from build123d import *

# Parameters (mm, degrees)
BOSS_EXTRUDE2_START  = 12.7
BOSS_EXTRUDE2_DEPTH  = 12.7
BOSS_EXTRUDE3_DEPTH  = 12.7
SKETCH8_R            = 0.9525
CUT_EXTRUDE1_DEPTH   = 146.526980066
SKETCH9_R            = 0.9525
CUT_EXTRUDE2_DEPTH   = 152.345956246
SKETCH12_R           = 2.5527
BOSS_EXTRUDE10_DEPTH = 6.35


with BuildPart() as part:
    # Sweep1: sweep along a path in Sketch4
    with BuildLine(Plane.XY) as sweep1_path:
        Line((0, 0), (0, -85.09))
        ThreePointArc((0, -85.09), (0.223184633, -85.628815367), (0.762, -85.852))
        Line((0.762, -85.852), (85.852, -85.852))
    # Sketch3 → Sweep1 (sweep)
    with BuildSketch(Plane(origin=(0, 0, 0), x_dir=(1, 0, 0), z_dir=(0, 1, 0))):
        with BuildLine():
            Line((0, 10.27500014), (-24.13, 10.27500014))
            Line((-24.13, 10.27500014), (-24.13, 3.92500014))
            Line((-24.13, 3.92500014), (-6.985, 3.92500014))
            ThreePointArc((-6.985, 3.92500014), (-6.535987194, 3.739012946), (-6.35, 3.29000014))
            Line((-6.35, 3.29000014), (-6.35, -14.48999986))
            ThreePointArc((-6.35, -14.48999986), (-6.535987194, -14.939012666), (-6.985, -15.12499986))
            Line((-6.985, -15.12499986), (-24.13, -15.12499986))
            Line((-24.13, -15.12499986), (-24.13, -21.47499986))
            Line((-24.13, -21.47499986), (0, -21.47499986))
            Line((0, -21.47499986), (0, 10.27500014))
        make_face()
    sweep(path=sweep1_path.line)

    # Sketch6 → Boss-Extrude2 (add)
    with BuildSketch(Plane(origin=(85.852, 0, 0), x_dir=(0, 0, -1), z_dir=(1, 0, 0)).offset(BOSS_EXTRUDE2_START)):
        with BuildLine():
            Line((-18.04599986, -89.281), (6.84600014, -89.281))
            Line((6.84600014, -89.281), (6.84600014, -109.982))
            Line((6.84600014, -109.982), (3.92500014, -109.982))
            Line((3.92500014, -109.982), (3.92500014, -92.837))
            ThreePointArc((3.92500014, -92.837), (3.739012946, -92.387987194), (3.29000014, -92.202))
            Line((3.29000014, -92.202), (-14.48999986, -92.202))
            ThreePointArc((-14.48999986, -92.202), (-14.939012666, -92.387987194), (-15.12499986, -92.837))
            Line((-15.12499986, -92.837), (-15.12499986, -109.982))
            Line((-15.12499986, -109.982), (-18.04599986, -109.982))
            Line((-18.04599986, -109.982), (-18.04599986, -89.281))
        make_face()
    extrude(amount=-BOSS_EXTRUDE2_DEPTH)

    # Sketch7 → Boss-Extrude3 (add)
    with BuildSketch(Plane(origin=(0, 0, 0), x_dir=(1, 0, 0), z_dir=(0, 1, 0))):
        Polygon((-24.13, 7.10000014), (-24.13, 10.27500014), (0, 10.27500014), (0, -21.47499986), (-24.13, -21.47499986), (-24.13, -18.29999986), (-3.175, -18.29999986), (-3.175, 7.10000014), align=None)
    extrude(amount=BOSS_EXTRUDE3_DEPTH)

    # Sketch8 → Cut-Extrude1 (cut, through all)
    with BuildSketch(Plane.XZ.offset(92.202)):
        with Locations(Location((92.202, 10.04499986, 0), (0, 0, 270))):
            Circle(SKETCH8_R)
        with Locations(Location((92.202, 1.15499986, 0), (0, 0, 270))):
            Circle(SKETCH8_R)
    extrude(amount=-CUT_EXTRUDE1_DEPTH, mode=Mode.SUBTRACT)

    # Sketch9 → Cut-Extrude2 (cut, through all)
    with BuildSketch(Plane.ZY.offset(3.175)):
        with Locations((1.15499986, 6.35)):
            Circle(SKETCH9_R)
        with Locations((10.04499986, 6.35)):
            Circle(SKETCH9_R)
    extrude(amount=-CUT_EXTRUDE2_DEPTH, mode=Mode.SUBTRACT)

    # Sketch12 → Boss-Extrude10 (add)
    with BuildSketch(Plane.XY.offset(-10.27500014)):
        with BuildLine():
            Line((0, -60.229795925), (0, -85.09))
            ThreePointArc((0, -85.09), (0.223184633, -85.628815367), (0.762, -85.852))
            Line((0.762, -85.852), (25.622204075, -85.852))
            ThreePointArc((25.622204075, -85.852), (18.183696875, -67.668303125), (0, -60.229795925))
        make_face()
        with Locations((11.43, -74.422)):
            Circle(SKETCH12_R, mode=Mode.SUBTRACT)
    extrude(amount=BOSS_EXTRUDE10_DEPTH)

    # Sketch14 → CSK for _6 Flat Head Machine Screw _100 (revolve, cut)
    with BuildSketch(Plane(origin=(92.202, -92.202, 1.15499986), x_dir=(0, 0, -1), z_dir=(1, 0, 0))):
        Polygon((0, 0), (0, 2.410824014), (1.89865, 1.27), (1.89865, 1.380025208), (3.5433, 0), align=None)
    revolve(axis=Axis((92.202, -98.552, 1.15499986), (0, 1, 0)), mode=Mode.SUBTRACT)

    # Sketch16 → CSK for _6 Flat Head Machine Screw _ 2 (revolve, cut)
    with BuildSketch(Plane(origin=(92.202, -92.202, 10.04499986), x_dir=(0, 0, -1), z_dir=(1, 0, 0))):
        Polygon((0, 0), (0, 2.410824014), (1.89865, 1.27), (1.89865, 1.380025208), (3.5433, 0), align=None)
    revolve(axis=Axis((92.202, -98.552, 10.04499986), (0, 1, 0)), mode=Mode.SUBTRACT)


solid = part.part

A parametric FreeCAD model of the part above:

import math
import FreeCAD as App
import Part
import Sketcher
Q = App.Units.Quantity

doc = App.newDocument("Part")
params = doc.addObject("Spreadsheet::Sheet", "Params")
for row, (alias, value) in enumerate([
    ("sketch1_height", "0.7 in"),
    ("sketch1_radius", "0.025 in"),
    ("sketch1_width", "0.95 in"),
    ("sketch2_radius", "0.03 in"),
    ("sketch2_width", "3.35 in"),
    ("sketch3_height", "0.7 in"),
    ("sketch3_radius", "0.025 in"),
    ("sketch3_height2", "0.98 in"),
    ("sketch3_width", "0.815 in"),
    ("pad1_length", "0.5 in"),
    ("sketch4_height", "1 in"),
    ("sketch4_width", "0.95 in"),
    ("sketch4_height2", "1.25 in"),
    ("sketch4_width2", "0.825 in"),
    ("pad2_length", "0.5 in"),
    ("sketch5_diameter", "0.075 in"),
    ("sketch6_diameter", "0.075 in"),
    ("sketch7_radius", "1 in"),
    ("sketch7_radius2", "0.03 in"),
    ("sketch7_diameter", "0.201 in"),
    ("pad3_length", "0.25 in"),
    ("groove_angle", "360 deg"),
    ("groove2_angle", "360 deg"),
], start=1):
    params.set(f"A{row}", alias)
    params.set(f"B{row}", "=" + value)
    params.setAlias(f"B{row}", alias)

body = doc.addObject("PartDesign::Body", "Body")

# Sketch on XZ plane
sketch1 = doc.addObject("Sketcher::SketchObject", "Sketch")
body.addObject(sketch1)
sketch1.AttachmentSupport = (doc.XZ_Plane, [""])
sketch1.MapMode = "FlatFace"
sketch1.addGeometry([
    Part.LineSegment(App.Vector(0, -10.3, 0), App.Vector(-24.1, -10.3, 0)),  # 0
    Part.LineSegment(App.Vector(-24.1, -10.3, 0), App.Vector(-24.1, -3.9, 0)),  # 1
    Part.LineSegment(App.Vector(-24.1, -3.9, 0), App.Vector(-7, -3.9, 0)),  # 2
    Part.ArcOfCircle(Part.Circle(App.Vector(-7, -3.3, 0), App.Vector(0, 0, 1), 0.6), math.radians(-90), math.radians(0)),  # 3
    Part.LineSegment(App.Vector(-6.3, -3.3, 0), App.Vector(-6.3, 14.5, 0)),  # 4
    Part.ArcOfCircle(Part.Circle(App.Vector(-7, 14.5, 0), App.Vector(0, 0, 1), 0.6), math.radians(0), math.radians(90)),  # 5
    Part.LineSegment(App.Vector(-7, 15.1, 0), App.Vector(-24.1, 15.1, 0)),  # 6
    Part.LineSegment(App.Vector(-24.1, 15.1, 0), App.Vector(-24.1, 21.5, 0)),  # 7
    Part.LineSegment(App.Vector(-24.1, 21.5, 0), App.Vector(0, 21.5, 0)),  # 8
    Part.LineSegment(App.Vector(0, 21.5, 0), App.Vector(0, -10.3, 0)),  # 9
], False)
sketch1.addConstraint([
    Sketcher.Constraint("Coincident", 0, 2, 1, 1),
    Sketcher.Constraint("Coincident", 1, 2, 2, 1),
    Sketcher.Constraint("Tangent", 2, 2, 3, 1),
    Sketcher.Constraint("Tangent", 3, 2, 4, 1),
    Sketcher.Constraint("Tangent", 4, 2, 5, 1),
    Sketcher.Constraint("Tangent", 5, 2, 6, 1),
    Sketcher.Constraint("Coincident", 6, 2, 7, 1),
    Sketcher.Constraint("Coincident", 7, 2, 8, 1),
    Sketcher.Constraint("Coincident", 8, 2, 9, 1),
    Sketcher.Constraint("Coincident", 9, 2, 0, 1),
    Sketcher.Constraint("Horizontal", 0),
    Sketcher.Constraint("Vertical", 1),
    Sketcher.Constraint("Horizontal", 2),
    Sketcher.Constraint("Vertical", 4),
    Sketcher.Constraint("Horizontal", 6),
    Sketcher.Constraint("Vertical", 7),
    Sketcher.Constraint("Horizontal", 8),
    Sketcher.Constraint("Vertical", 9),
    Sketcher.Constraint("Equal", 3, 5),
    Sketcher.Constraint("PointOnObject", 8, 2, -2),
    Sketcher.Constraint("Vertical", 1, 2, 6, 2),
    Sketcher.Constraint("Equal", 1, 7),
    Sketcher.Constraint("DistanceY", 4, 1, 4, 2, Q("0.7 in")),
    Sketcher.Constraint("Radius", 3, Q("0.025 in")),
    Sketcher.Constraint("DistanceY", 1, 2, 7, 2, Q("1 in")),
    Sketcher.Constraint("DistanceX", 0, 2, 0, 1, Q("0.95 in")),
    Sketcher.Constraint("DistanceX", 1, 2, 3, 2, Q("0.7 in")),
    Sketcher.Constraint("DistanceY", 3, 3, -1, 1, Q("3.29 mm")),
])
sketch1.setExpression("Constraints[22]", "Params.sketch1_height")
sketch1.setExpression("Constraints[23]", "Params.sketch1_radius")
sketch1.setExpression("Constraints[25]", "Params.sketch1_width")

# Sketch on XY plane
sketch2 = doc.addObject("Sketcher::SketchObject", "Sketch001")
body.addObject(sketch2)
sketch2.AttachmentSupport = (doc.XY_Plane, [""])
sketch2.MapMode = "FlatFace"
sketch2.addGeometry([
    Part.LineSegment(App.Vector(0, 0, 0), App.Vector(0, -85.1, 0)),
    Part.ArcOfCircle(Part.Circle(App.Vector(0.8, -85.1, 0), App.Vector(0, 0, 1), 0.8), math.radians(-180), math.radians(-90)),
    Part.LineSegment(App.Vector(0.8, -85.9, 0), App.Vector(85.9, -85.9, 0)),
], False)
sketch2.addConstraint([
    Sketcher.Constraint("Tangent", 0, 2, 1, 1),
    Sketcher.Constraint("Tangent", 1, 2, 2, 1),
    Sketcher.Constraint("Vertical", 0),
    Sketcher.Constraint("Horizontal", 2),
    Sketcher.Constraint("Coincident", 0, 1, -1, 1),
    Sketcher.Constraint("Equal", 2, 0),
    Sketcher.Constraint("Radius", 1, Q("0.03 in")),
    Sketcher.Constraint("DistanceX", 2, 1, 2, 2, Q("3.35 in")),
])
sketch2.setExpression("Constraints[6]", "Params.sketch2_radius")
sketch2.setExpression("Constraints[7]", "Params.sketch2_width")
doc.recompute()

additivepipe = doc.addObject("PartDesign::AdditivePipe", "AdditivePipe")
body.addObject(additivepipe)
additivepipe.Profile = sketch1
additivepipe.Spine = (sketch2, ["Edge1", "Edge2", "Edge3"])

# Sketch on YZ plane
sketch3 = doc.addObject("Sketcher::SketchObject", "Sketch002")
body.addObject(sketch3)
sketch3.AttachmentSupport = (doc.YZ_Plane, [""])
sketch3.MapMode = "FlatFace"
sketch3.AttachmentOffset = App.Placement(App.Vector(0, 0, 3.88 * 25.4), App.Rotation())
sketch3.addGeometry([
    Part.LineSegment(App.Vector(-89.3, -6.8, 0), App.Vector(-89.3, 18, 0)),  # 0
    Part.LineSegment(App.Vector(-89.3, 18, 0), App.Vector(-110, 18, 0)),  # 1
    Part.LineSegment(App.Vector(-110, 18, 0), App.Vector(-110, 15.1, 0)),  # 2
    Part.LineSegment(App.Vector(-110, 15.1, 0), App.Vector(-92.8, 15.1, 0)),  # 3
    Part.ArcOfCircle(Part.Circle(App.Vector(-92.8, 14.5, 0), App.Vector(0, 0, 1), 0.6), math.radians(0), math.radians(90)),  # 4
    Part.LineSegment(App.Vector(-92.2, 14.5, 0), App.Vector(-92.2, -3.3, 0)),  # 5
    Part.ArcOfCircle(Part.Circle(App.Vector(-92.8, -3.3, 0), App.Vector(0, 0, 1), 0.6), math.radians(-90), math.radians(0)),  # 6
    Part.LineSegment(App.Vector(-92.8, -3.9, 0), App.Vector(-110, -3.9, 0)),  # 7
    Part.LineSegment(App.Vector(-110, -3.9, 0), App.Vector(-110, -6.8, 0)),  # 8
    Part.LineSegment(App.Vector(-110, -6.8, 0), App.Vector(-89.3, -6.8, 0)),  # 9
], False)
sketch3.addConstraint([
    Sketcher.Constraint("Coincident", 0, 2, 1, 1),
    Sketcher.Constraint("Coincident", 1, 2, 2, 1),
    Sketcher.Constraint("Coincident", 2, 2, 3, 1),
    Sketcher.Constraint("Tangent", 3, 2, 4, 2),
    Sketcher.Constraint("Tangent", 4, 1, 5, 1),
    Sketcher.Constraint("Tangent", 5, 2, 6, 2),
    Sketcher.Constraint("Tangent", 6, 1, 7, 1),
    Sketcher.Constraint("Coincident", 7, 2, 8, 1),
    Sketcher.Constraint("Coincident", 8, 2, 9, 1),
    Sketcher.Constraint("Coincident", 9, 2, 0, 1),
    Sketcher.Constraint("Vertical", 0),
    Sketcher.Constraint("Horizontal", 1),
    Sketcher.Constraint("Vertical", 2),
    Sketcher.Constraint("Horizontal", 3),
    Sketcher.Constraint("Vertical", 5),
    Sketcher.Constraint("Horizontal", 7),
    Sketcher.Constraint("Vertical", 8),
    Sketcher.Constraint("Horizontal", 9),
    Sketcher.Constraint("Equal", 4, 6),
    Sketcher.Constraint("Vertical", 2, 2, 7, 2),
    Sketcher.Constraint("Equal", 2, 8),
    Sketcher.Constraint("DistanceY", 5, 2, 5, 1, Q("0.7 in")),
    Sketcher.Constraint("Radius", 4, Q("0.025 in")),
    Sketcher.Constraint("DistanceY", 0, 1, 0, 2, Q("0.98 in")),
    Sketcher.Constraint("DistanceX", 2, 2, 4, 1, Q("0.7 in")),
    Sketcher.Constraint("DistanceX", 1, 2, 1, 1, Q("0.815 in")),
    Sketcher.Constraint("DistanceX", 1, 2, -1, 1, Q("4.33 in")),
    Sketcher.Constraint("DistanceY", -1, 1, 4, 3, Q("14.49 mm")),
])
sketch3.setExpression("Constraints[21]", "Params.sketch3_height")
sketch3.setExpression("Constraints[22]", "Params.sketch3_radius")
sketch3.setExpression("Constraints[23]", "Params.sketch3_height2")
sketch3.setExpression("Constraints[25]", "Params.sketch3_width")
pad1 = doc.addObject("PartDesign::Pad", "Pad")
body.addObject(pad1)
pad1.Profile = sketch3
pad1.setExpression("Length", "Params.pad1_length")
pad1.Reversed = True

# Sketch on XZ plane
sketch4 = doc.addObject("Sketcher::SketchObject", "Sketch003")
body.addObject(sketch4)
sketch4.AttachmentSupport = (doc.XZ_Plane, [""])
sketch4.MapMode = "FlatFace"
sketch4.addGeometry([
    Part.LineSegment(App.Vector(-24.1, -10.3, 0), App.Vector(-24.1, -7.1, 0)),  # 0
    Part.LineSegment(App.Vector(-24.1, -7.1, 0), App.Vector(-3.2, -7.1, 0)),  # 1
    Part.LineSegment(App.Vector(-3.2, -7.1, 0), App.Vector(-3.2, 18.3, 0)),  # 2
    Part.LineSegment(App.Vector(-3.2, 18.3, 0), App.Vector(-24.1, 18.3, 0)),  # 3
    Part.LineSegment(App.Vector(-24.1, 18.3, 0), App.Vector(-24.1, 21.5, 0)),  # 4
    Part.LineSegment(App.Vector(-24.1, 21.5, 0), App.Vector(0, 21.5, 0)),  # 5
    Part.LineSegment(App.Vector(0, 21.5, 0), App.Vector(0, -10.3, 0)),  # 6
    Part.LineSegment(App.Vector(0, -10.3, 0), App.Vector(-24.1, -10.3, 0)),  # 7
], False)
sketch4.addConstraint([
    Sketcher.Constraint("Coincident", 0, 2, 1, 1),
    Sketcher.Constraint("Coincident", 1, 2, 2, 1),
    Sketcher.Constraint("Coincident", 2, 2, 3, 1),
    Sketcher.Constraint("Coincident", 3, 2, 4, 1),
    Sketcher.Constraint("Coincident", 4, 2, 5, 1),
    Sketcher.Constraint("Coincident", 5, 2, 6, 1),
    Sketcher.Constraint("Coincident", 6, 2, 7, 1),
    Sketcher.Constraint("Coincident", 7, 2, 0, 1),
    Sketcher.Constraint("Vertical", 0),
    Sketcher.Constraint("Horizontal", 1),
    Sketcher.Constraint("Vertical", 2),
    Sketcher.Constraint("Horizontal", 3),
    Sketcher.Constraint("Vertical", 4),
    Sketcher.Constraint("Horizontal", 5),
    Sketcher.Constraint("Vertical", 6),
    Sketcher.Constraint("Horizontal", 7),
    Sketcher.Constraint("PointOnObject", 5, 2, -2),
    Sketcher.Constraint("Vertical", 0, 2, 3, 2),
    Sketcher.Constraint("Equal", 0, 4),
    Sketcher.Constraint("DistanceY", 2, 1, 2, 2, Q("1 in")),
    Sketcher.Constraint("DistanceX", 5, 1, 5, 2, Q("0.95 in")),
    Sketcher.Constraint("DistanceY", 6, 2, 6, 1, Q("1.25 in")),
    Sketcher.Constraint("DistanceX", 1, 1, 1, 2, Q("0.825 in")),
    Sketcher.Constraint("DistanceY", 0, 2, -1, 1, Q("7.1 mm")),
])
sketch4.setExpression("Constraints[19]", "Params.sketch4_height")
sketch4.setExpression("Constraints[20]", "Params.sketch4_width")
sketch4.setExpression("Constraints[21]", "Params.sketch4_height2")
sketch4.setExpression("Constraints[22]", "Params.sketch4_width2")
pad2 = doc.addObject("PartDesign::Pad", "Pad001")
body.addObject(pad2)
pad2.Profile = sketch4
pad2.setExpression("Length", "Params.pad2_length")
pad2.Reversed = True

# Sketch on XZ plane
sketch5 = doc.addObject("Sketcher::SketchObject", "Sketch004")
body.addObject(sketch5)
sketch5.AttachmentSupport = (doc.XZ_Plane, [""])
sketch5.MapMode = "FlatFace"
sketch5.AttachmentOffset = App.Placement(App.Vector(0, 0, 3.63 * 25.4), App.Rotation())
sketch5.addGeometry([
    Part.Circle(App.Vector(92.2, 10, 0), App.Vector(0, 0, 1), 1),
    Part.Circle(App.Vector(92.2, 1.2, 0), App.Vector(0, 0, 1), 1),
], False)
sketch5.addConstraint([
    Sketcher.Constraint("Equal", 0, 1),
    Sketcher.Constraint("Vertical", 0, 3, 1, 3),
    Sketcher.Constraint("Diameter", 0, Q("0.075 in")),
    Sketcher.Constraint("DistanceX", -1, 1, 0, 3, Q("3.63 in")),
    Sketcher.Constraint("DistanceY", 1, 3, 0, 3, Q("0.35 in")),
    Sketcher.Constraint("DistanceY", -1, 1, 0, 3, Q("10.045 mm")),
])
sketch5.setExpression("Constraints[2]", "Params.sketch5_diameter")
pocket1 = doc.addObject("PartDesign::Pocket", "Pocket")
body.addObject(pocket1)
pocket1.Profile = sketch5
pocket1.Type = "ThroughAll"

# Sketch on YZ plane
sketch6 = doc.addObject("Sketcher::SketchObject", "Sketch005")
body.addObject(sketch6)
sketch6.AttachmentSupport = (doc.YZ_Plane, [""])
sketch6.MapMode = "FlatFace"
sketch6.AttachmentOffset = App.Placement(App.Vector(0, 0, -0.125 * 25.4), App.Rotation())
sketch6.addGeometry([
    Part.Circle(App.Vector(6.3, 1.2, 0), App.Vector(0, 0, 1), 1),
    Part.Circle(App.Vector(6.3, 10, 0), App.Vector(0, 0, 1), 1),
], False)
sketch6.addConstraint([
    Sketcher.Constraint("Equal", 0, 1),
    Sketcher.Constraint("Vertical", 0, 3, 1, 3),
    Sketcher.Constraint("Diameter", 0, Q("0.075 in")),
    Sketcher.Constraint("DistanceX", -1, 1, 0, 3, Q("0.25 in")),
    Sketcher.Constraint("DistanceY", 0, 3, 1, 3, Q("0.35 in")),
    Sketcher.Constraint("DistanceY", -1, 1, 0, 3, Q("1.155 mm")),
])
sketch6.setExpression("Constraints[2]", "Params.sketch6_diameter")
pocket2 = doc.addObject("PartDesign::Pocket", "Pocket001")
body.addObject(pocket2)
pocket2.Profile = sketch6
pocket2.Type = "ThroughAll"
pocket2.Reversed = True

# Sketch on XY plane
sketch7 = doc.addObject("Sketcher::SketchObject", "Sketch006")
body.addObject(sketch7)
sketch7.AttachmentSupport = (doc.XY_Plane, [""])
sketch7.MapMode = "FlatFace"
sketch7.AttachmentOffset = App.Placement(App.Vector(0, 0, -10.275), App.Rotation())
sketch7.addGeometry([
    Part.LineSegment(App.Vector(0, -60.2, 0), App.Vector(0, -85.1, 0)),  # 0
    Part.ArcOfCircle(Part.Circle(App.Vector(0.8, -85.1, 0), App.Vector(0, 0, 1), 0.8), math.radians(-180), math.radians(-90)),  # 1
    Part.LineSegment(App.Vector(0.8, -85.9, 0), App.Vector(25.6, -85.9, 0)),  # 2
    Part.ArcOfCircle(Part.Circle(App.Vector(0.2, -85.6, 0), App.Vector(0, 0, 1), 25.4), math.radians(-1), math.radians(91)),  # 3
    Part.Circle(App.Vector(11.4, -74.4, 0), App.Vector(0, 0, 1), 2.6),  # 4
], False)
sketch7.addConstraint([
    Sketcher.Constraint("Tangent", 0, 2, 1, 1),
    Sketcher.Constraint("Tangent", 1, 2, 2, 1),
    Sketcher.Constraint("Coincident", 2, 2, 3, 1),
    Sketcher.Constraint("Coincident", 3, 2, 0, 1),
    Sketcher.Constraint("Vertical", 0),
    Sketcher.Constraint("Horizontal", 2),
    Sketcher.Constraint("PointOnObject", 0, 2, -2),
    Sketcher.Constraint("Equal", 2, 0),
    Sketcher.Constraint("Radius", 3, Q("1 in")),
    Sketcher.Constraint("Radius", 1, Q("0.03 in")),
    Sketcher.Constraint("Diameter", 4, Q("0.201 in")),
    Sketcher.Constraint("DistanceY", 1, 3, -1, 1, Q("3.35 in")),
    Sketcher.Constraint("DistanceX", -1, 1, 4, 3, Q("0.45 in")),
    Sketcher.Constraint("DistanceY", 4, 3, -1, 1, Q("2.93 in")),
    Sketcher.Constraint("DistanceX", 2, 1, 2, 2, Q("24.860204 mm")),
])
sketch7.setExpression("Constraints[8]", "Params.sketch7_radius")
sketch7.setExpression("Constraints[9]", "Params.sketch7_radius2")
sketch7.setExpression("Constraints[10]", "Params.sketch7_diameter")
pad3 = doc.addObject("PartDesign::Pad", "Pad002")
body.addObject(pad3)
pad3.Profile = sketch7
pad3.setExpression("Length", "Params.pad3_length")

# Sketch on YZ plane
sketch8 = doc.addObject("Sketcher::SketchObject", "Sketch007")
body.addObject(sketch8)
sketch8.AttachmentSupport = (doc.YZ_Plane, [""])
sketch8.MapMode = "FlatFace"
sketch8.AttachmentOffset = App.Placement(App.Vector(0, 0, 3.63 * 25.4), App.Rotation())
sketch8.addGeometry([
    Part.LineSegment(App.Vector(-89.79, 1.15, 0), App.Vector(-92.2, 1.15, 0)),  # 0
    Part.LineSegment(App.Vector(-92.2, 1.15, 0), App.Vector(-92.2, -2.39, 0)),  # 1
    Part.LineSegment(App.Vector(-92.2, -2.39, 0), App.Vector(-90.82, -0.74, 0)),  # 2
    Part.LineSegment(App.Vector(-90.82, -0.74, 0), App.Vector(-90.93, -0.74, 0)),  # 3
    Part.LineSegment(App.Vector(-90.93, -0.74, 0), App.Vector(-89.79, 1.15, 0)),  # 4
], False)
sketch8.addGeometry(Part.LineSegment(App.Vector(-92.2, 1.15, 0), App.Vector(-89.79, 1.15, 0)), True)  # axis
sketch8.addConstraint([
    Sketcher.Constraint("Coincident", 0, 2, 1, 1),
    Sketcher.Constraint("Coincident", 1, 2, 2, 1),
    Sketcher.Constraint("Coincident", 2, 2, 3, 1),
    Sketcher.Constraint("Coincident", 3, 2, 4, 1),
    Sketcher.Constraint("Coincident", 4, 2, 0, 1),
    Sketcher.Constraint("Horizontal", 0),
    Sketcher.Constraint("Vertical", 1),
    Sketcher.Constraint("Horizontal", 3),
    Sketcher.Constraint("Horizontal", 5),
    Sketcher.Constraint("Coincident", 5, 1, 0, 2),
    Sketcher.Constraint("Equal", 0, 5),
    Sketcher.Constraint("Angle", 2, Q("50 deg")),
    Sketcher.Constraint("Angle", 4, Q("59 deg")),
    Sketcher.Constraint("DistanceX", 0, 2, -1, 1, Q("3.63 in")),
    Sketcher.Constraint("DistanceX", 3, 2, -1, 1, Q("3.58 in")),
    Sketcher.Constraint("DistanceY", 1, 2, 1, 1, Q("0.1395 in")),
    Sketcher.Constraint("DistanceY", -1, 1, 0, 2, Q("1.155 mm")),
    Sketcher.Constraint("DistanceX", 2, 2, 4, 2, Q("1.030799 mm")),
])
groove = doc.addObject("PartDesign::Groove", "Groove")
body.addObject(groove)
groove.Profile = sketch8
groove.ReferenceAxis = (sketch8, ["Axis0"])
groove.setExpression("Angle", "Params.groove_angle")

# Sketch on YZ plane
sketch9 = doc.addObject("Sketcher::SketchObject", "Sketch008")
body.addObject(sketch9)
sketch9.AttachmentSupport = (doc.YZ_Plane, [""])
sketch9.MapMode = "FlatFace"
sketch9.AttachmentOffset = App.Placement(App.Vector(0, 0, 3.63 * 25.4), App.Rotation())
sketch9.addGeometry([
    Part.LineSegment(App.Vector(-89.79, 10.04, 0), App.Vector(-92.2, 10.04, 0)),  # 0
    Part.LineSegment(App.Vector(-92.2, 10.04, 0), App.Vector(-92.2, 6.5, 0)),  # 1
    Part.LineSegment(App.Vector(-92.2, 6.5, 0), App.Vector(-90.82, 8.15, 0)),  # 2
    Part.LineSegment(App.Vector(-90.82, 8.15, 0), App.Vector(-90.93, 8.15, 0)),  # 3
    Part.LineSegment(App.Vector(-90.93, 8.15, 0), App.Vector(-89.79, 10.04, 0)),  # 4
], False)
sketch9.addGeometry(Part.LineSegment(App.Vector(-92.2, 10.04, 0), App.Vector(-89.79, 10.04, 0)), True)  # axis
sketch9.addConstraint([
    Sketcher.Constraint("Coincident", 0, 2, 1, 1),
    Sketcher.Constraint("Coincident", 1, 2, 2, 1),
    Sketcher.Constraint("Coincident", 2, 2, 3, 1),
    Sketcher.Constraint("Coincident", 3, 2, 4, 1),
    Sketcher.Constraint("Coincident", 4, 2, 0, 1),
    Sketcher.Constraint("Horizontal", 0),
    Sketcher.Constraint("Vertical", 1),
    Sketcher.Constraint("Horizontal", 3),
    Sketcher.Constraint("Horizontal", 5),
    Sketcher.Constraint("Coincident", 5, 1, 0, 2),
    Sketcher.Constraint("Equal", 0, 5),
    Sketcher.Constraint("Angle", 2, Q("50 deg")),
    Sketcher.Constraint("Angle", 4, Q("59 deg")),
    Sketcher.Constraint("DistanceX", 0, 2, -1, 1, Q("3.63 in")),
    Sketcher.Constraint("DistanceX", 3, 2, -1, 1, Q("3.58 in")),
    Sketcher.Constraint("DistanceY", 1, 2, 1, 1, Q("0.1395 in")),
    Sketcher.Constraint("DistanceY", -1, 1, 0, 2, Q("10.045 mm")),
    Sketcher.Constraint("DistanceX", 2, 2, 4, 2, Q("1.030799 mm")),
])
groove2 = doc.addObject("PartDesign::Groove", "Groove001")
body.addObject(groove2)
groove2.Profile = sketch9
groove2.ReferenceAxis = (sketch9, ["Axis0"])
groove2.setExpression("Angle", "Params.groove2_angle")

doc.recompute()
